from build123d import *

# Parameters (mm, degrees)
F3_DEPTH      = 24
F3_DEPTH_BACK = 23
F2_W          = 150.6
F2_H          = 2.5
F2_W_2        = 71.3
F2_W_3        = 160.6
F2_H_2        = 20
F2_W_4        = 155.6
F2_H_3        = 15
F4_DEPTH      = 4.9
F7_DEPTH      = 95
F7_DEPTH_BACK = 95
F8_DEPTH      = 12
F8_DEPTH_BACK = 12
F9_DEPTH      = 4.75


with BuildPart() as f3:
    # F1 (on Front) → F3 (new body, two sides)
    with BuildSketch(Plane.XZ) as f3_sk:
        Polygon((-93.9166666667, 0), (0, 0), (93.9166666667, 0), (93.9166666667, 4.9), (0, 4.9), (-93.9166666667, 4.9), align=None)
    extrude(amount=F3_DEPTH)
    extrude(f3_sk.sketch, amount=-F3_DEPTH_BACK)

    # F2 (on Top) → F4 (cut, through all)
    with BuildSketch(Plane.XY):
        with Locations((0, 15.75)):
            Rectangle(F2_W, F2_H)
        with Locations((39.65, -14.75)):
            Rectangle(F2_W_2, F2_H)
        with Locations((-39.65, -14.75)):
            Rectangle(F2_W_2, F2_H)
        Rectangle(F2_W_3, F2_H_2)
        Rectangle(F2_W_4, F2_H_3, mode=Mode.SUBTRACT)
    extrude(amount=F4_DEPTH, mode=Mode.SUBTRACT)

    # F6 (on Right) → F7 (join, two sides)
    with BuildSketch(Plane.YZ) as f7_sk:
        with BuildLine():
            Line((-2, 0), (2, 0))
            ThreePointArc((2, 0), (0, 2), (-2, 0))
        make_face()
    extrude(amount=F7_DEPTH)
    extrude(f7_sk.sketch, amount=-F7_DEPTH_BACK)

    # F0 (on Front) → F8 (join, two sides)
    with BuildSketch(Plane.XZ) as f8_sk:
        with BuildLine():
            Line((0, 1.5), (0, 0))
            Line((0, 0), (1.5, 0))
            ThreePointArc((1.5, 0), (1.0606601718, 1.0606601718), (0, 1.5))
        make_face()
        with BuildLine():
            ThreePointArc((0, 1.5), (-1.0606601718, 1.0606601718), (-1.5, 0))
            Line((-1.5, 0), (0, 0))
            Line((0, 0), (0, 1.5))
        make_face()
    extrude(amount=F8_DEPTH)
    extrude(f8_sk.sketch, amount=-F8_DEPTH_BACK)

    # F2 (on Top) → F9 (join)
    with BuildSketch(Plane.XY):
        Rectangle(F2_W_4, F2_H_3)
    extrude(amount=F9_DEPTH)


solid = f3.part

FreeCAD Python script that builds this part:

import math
import FreeCAD as App
import Part
import Sketcher

V = App.Vector
Q = App.Units.Quantity


def add_polygon(sketch, points):
    """Adds a closed chain of lines whose ends are joined by coincident constraints."""
    first, n = sketch.GeometryCount, len(points)
    for a, b in zip(points, points[1:] + points[:1]):
        sketch.addGeometry(Part.LineSegment(App.Vector(*a, 0), App.Vector(*b, 0)), False)
    for i in range(n):
        sketch.addConstraint(Sketcher.Constraint("Coincident", first + i, 2, first + (i + 1) % n, 1))

doc = App.newDocument("Part")
params = doc.addObject("Spreadsheet::Sheet", "Params")
for row, (alias, value) in enumerate([
    ("sketch1_height", "4.9 mm"),
    ("pad1_length", "24 mm"),
    ("pad1_length2", "23 mm"),
    ("sketch2_height", "20 mm"),
    ("sketch2_height2", "15 mm"),
    ("sketch2_width", "150.6 mm"),
    ("sketch2_width2", "71.3 mm"),
    ("sketch2_width3", "160.6 mm"),
    ("sketch3_radius", "2 mm"),
    ("pad2_length", "95 mm"),
    ("pad2_length2", "95 mm"),
    ("sketch4_radius", "1.5 mm"),
    ("pad3_length", "12 mm"),
    ("pad3_length2", "12 mm"),
    ("sketch5_height", "15 mm"),
    ("sketch5_width", "155.6 mm"),
    ("pad4_length", "4.75 mm"),
], start=1):
    params.set(f"A{row}", alias)
    params.set(f"B{row}", "=" + value)
    params.setAlias(f"B{row}", alias)

body = doc.addObject("PartDesign::Body", "Body")
body.AllowCompound = True

sketch1 = body.newObject("Sketcher::SketchObject", "Sketch")
sketch1.AttachmentSupport = (doc.getObject("XZ_Plane"), [""])
sketch1.MapMode = "FlatFace"
add_polygon(sketch1, [(-93.9, 0), (93.9, 0), (93.9, 4.9), (-93.9, 4.9)])
sketch1.addConstraint(Sketcher.Constraint("Horizontal", 0))
sketch1.addConstraint(Sketcher.Constraint("Vertical", 1))
sketch1.addConstraint(Sketcher.Constraint("Horizontal", 2))
sketch1.addConstraint(Sketcher.Constraint("Vertical", 3))
sketch1.addConstraint(Sketcher.Constraint("Symmetric", 0, 2, 3, 2, -1, 1))
sketch1.addConstraint(Sketcher.Constraint("DistanceY", 1, 1, 1, 2, Q("4.9 mm")))
sketch1.addConstraint(Sketcher.Constraint("DistanceX", 0, 1, 0, 2, Q("187.833333 mm")))
sketch1.setExpression("Constraints[9]", "Params.sketch1_height")
pad1 = body.newObject("PartDesign::Pad", "Pad")
pad1.Profile = sketch1
pad1.Type = "TwoLengths"
pad1.setExpression("Length", "Params.pad1_length")
pad1.setExpression("Length2", "Params.pad1_length2")

sketch2 = body.newObject("Sketcher::SketchObject", "Sketch001")
sketch2.AttachmentSupport = (doc.getObject("XY_Plane"), [""])
sketch2.MapMode = "FlatFace"
add_polygon(sketch2, [(-75.3, 17), (-75.3, 14.5), (75.3, 14.5), (75.3, 17)])
add_polygon(sketch2, [(4, -13.5), (4, -16), (75.3, -16), (75.3, -13.5)])
add_polygon(sketch2, [(-75.3, -13.5), (-75.3, -16), (-4, -16), (-4, -13.5)])
add_polygon(sketch2, [(-80.3, 10), (-80.3, -10), (80.3, -10), (80.3, 10)])
add_polygon(sketch2, [(77.8, -7.5), (-77.8, -7.5), (-77.8, 7.5), (77.8, 7.5)])
sketch2.addConstraint(Sketcher.Constraint("Vertical", 0))
sketch2.addConstraint(Sketcher.Constraint("Horizontal", 1))
sketch2.addConstraint(Sketcher.Constraint("Vertical", 2))
sketch2.addConstraint(Sketcher.Constraint("Horizontal", 3))
sketch2.addConstraint(Sketcher.Constraint("Vertical", 4))
sketch2.addConstraint(Sketcher.Constraint("Horizontal", 5))
sketch2.addConstraint(Sketcher.Constraint("Vertical", 6))
sketch2.addConstraint(Sketcher.Constraint("Horizontal", 7))
sketch2.addConstraint(Sketcher.Constraint("Vertical", 8))
sketch2.addConstraint(Sketcher.Constraint("Horizontal", 9))
sketch2.addConstraint(Sketcher.Constraint("Vertical", 10))
sketch2.addConstraint(Sketcher.Constraint("Horizontal", 11))
sketch2.addConstraint(Sketcher.Constraint("Vertical", 12))
sketch2.addConstraint(Sketcher.Constraint("Horizontal", 13))
sketch2.addConstraint(Sketcher.Constraint("Vertical", 14))
sketch2.addConstraint(Sketcher.Constraint("Horizontal", 15))
sketch2.addConstraint(Sketcher.Constraint("Horizontal", 16))
sketch2.addConstraint(Sketcher.Constraint("Vertical", 17))
sketch2.addConstraint(Sketcher.Constraint("Horizontal", 18))
sketch2.addConstraint(Sketcher.Constraint("Vertical", 19))
sketch2.addConstraint(Sketcher.Constraint("Symmetric", 12, 2, 14, 2, -1, 1))
sketch2.addConstraint(Sketcher.Constraint("Symmetric", 16, 2, 18, 2, -1, 1))
sketch2.addConstraint(Sketcher.Constraint("Symmetric", 5, 2, 8, 2, -2))
sketch2.addConstraint(Sketcher.Constraint("Symmetric", 7, 2, 10, 2, -2))
sketch2.addConstraint(Sketcher.Constraint("Vertical", 2, 2, 5, 2))
sketch2.addConstraint(Sketcher.Constraint("Vertical", 3, 2, 8, 2))
sketch2.addConstraint(Sketcher.Constraint("Equal", 2, 4))
sketch2.addConstraint(Sketcher.Constraint("DistanceY", 12, 2, 12, 1, Q("20 mm")))
sketch2.addConstraint(Sketcher.Constraint("DistanceY", 17, 1, 17, 2, Q("15 mm")))
sketch2.addConstraint(Sketcher.Constraint("DistanceX", 1, 1, 1, 2, Q("150.6 mm")))
sketch2.addConstraint(Sketcher.Constraint("DistanceX", 5, 1, 5, 2, Q("71.3 mm")))
sketch2.addConstraint(Sketcher.Constraint("DistanceX", 13, 1, 13, 2, Q("160.6 mm")))
sketch2.addConstraint(Sketcher.Constraint("DistanceX", 16, 2, 16, 1, Q("155.6 mm")))
sketch2.addConstraint(Sketcher.Constraint("DistanceY", 0, 2, 0, 1, Q("2.5 mm")))
sketch2.addConstraint(Sketcher.Constraint("DistanceY", -1, 1, 2, 2, Q("17 mm")))
sketch2.addConstraint(Sketcher.Constraint("DistanceY", 4, 2, -1, 1, Q("16 mm")))
sketch2.setExpression("Constraints[47]", "Params.sketch2_height")
sketch2.setExpression("Constraints[48]", "Params.sketch2_height2")
sketch2.setExpression("Constraints[49]", "Params.sketch2_width")
sketch2.setExpression("Constraints[50]", "Params.sketch2_width2")
sketch2.setExpression("Constraints[51]", "Params.sketch2_width3")
pocket1 = body.newObject("PartDesign::Pocket", "Pocket")
pocket1.Profile = sketch2
pocket1.Type = "ThroughAll"
pocket1.Reversed = True

sketch3 = body.newObject("Sketcher::SketchObject", "Sketch002")
sketch3.AttachmentSupport = (doc.getObject("YZ_Plane"), [""])
sketch3.MapMode = "FlatFace"
sketch3.addGeometry(Part.LineSegment(V(-2, 0, 0), V(2, 0, 0)), False)
sketch3.addGeometry(Part.ArcOfCircle(Part.Circle(V(0, 0, 0), V(0, 0, 1), 2), math.radians(0), math.radians(180)), False)
sketch3.addConstraint(Sketcher.Constraint("Coincident", 0, 1, 1, 2))
sketch3.addConstraint(Sketcher.Constraint("Coincident", 1, 1, 0, 2))
sketch3.addConstraint(Sketcher.Constraint("Horizontal", 0))
sketch3.addConstraint(Sketcher.Constraint("Coincident", 1, 3, -1, 1))
sketch3.addConstraint(Sketcher.Constraint("PointOnObject", 0, 1, -1))
sketch3.addConstraint(Sketcher.Constraint("Radius", 1, Q("2 mm")))
sketch3.setExpression("Constraints[5]", "Params.sketch3_radius")
pad2 = body.newObject("PartDesign::Pad", "Pad001")
pad2.Profile = sketch3
pad2.Type = "TwoLengths"
pad2.setExpression("Length", "Params.pad2_length")
pad2.setExpression("Length2", "Params.pad2_length2")

sketch4 = body.newObject("Sketcher::SketchObject", "Sketch003")
sketch4.AttachmentSupport = (doc.getObject("XZ_Plane"), [""])
sketch4.MapMode = "FlatFace"
sketch4.addGeometry(Part.ArcOfCircle(Part.Circle(V(0, 0, 0), V(0, 0, 1), 1.5), math.radians(0), math.radians(90)), False)
sketch4.addGeometry(Part.ArcOfCircle(Part.Circle(V(0, 0, 0), V(0, 0, 1), 1.5), math.radians(90), math.radians(180)), False)
sketch4.addGeometry(Part.LineSegment(V(-1.5, 0, 0), V(1.5, 0, 0)), False)
sketch4.addConstraint(Sketcher.Constraint("Tangent", 0, 2, 1, 1))
sketch4.addConstraint(Sketcher.Constraint("Coincident", 1, 2, 2, 1))
sketch4.addConstraint(Sketcher.Constraint("Coincident", 2, 2, 0, 1))
sketch4.addConstraint(Sketcher.Constraint("Horizontal", 2))
sketch4.addConstraint(Sketcher.Constraint("Coincident", 0, 3, -1, 1))
sketch4.addConstraint(Sketcher.Constraint("Equal", 0, 1))
sketch4.addConstraint(Sketcher.Constraint("PointOnObject", 0, 2, -2))
sketch4.addConstraint(Sketcher.Constraint("PointOnObject", 1, 2, -1))
sketch4.addConstraint(Sketcher.Constraint("Radius", 0, Q("1.5 mm")))
sketch4.setExpression("Constraints[8]", "Params.sketch4_radius")
pad3 = body.newObject("PartDesign::Pad", "Pad002")
pad3.Profile = sketch4
pad3.Type = "TwoLengths"
pad3.setExpression("Length", "Params.pad3_length")
pad3.setExpression("Length2", "Params.pad3_length2")

sketch5 = body.newObject("Sketcher::SketchObject", "Sketch004")
sketch5.AttachmentSupport = (doc.getObject("XY_Plane"), [""])
sketch5.MapMode = "FlatFace"
add_polygon(sketch5, [(-78, 8), (-78, -8), (78, -8), (78, 8)])
sketch5.addConstraint(Sketcher.Constraint("Vertical", 0))
sketch5.addConstraint(Sketcher.Constraint("Horizontal", 1))
sketch5.addConstraint(Sketcher.Constraint("Vertical", 2))
sketch5.addConstraint(Sketcher.Constraint("Horizontal", 3))
sketch5.addConstraint(Sketcher.Constraint("Symmetric", 0, 2, 2, 2, -1, 1))
sketch5.addConstraint(Sketcher.Constraint("DistanceY", 0, 2, 0, 1, Q("15 mm")))
sketch5.addConstraint(Sketcher.Constraint("DistanceX", 1, 1, 1, 2, Q("155.6 mm")))
sketch5.setExpression("Constraints[9]", "Params.sketch5_height")
sketch5.setExpression("Constraints[10]", "Params.sketch5_width")
pad4 = body.newObject("PartDesign::Pad", "Pad003")
pad4.Profile = sketch5
pad4.setExpression("Length", "Params.pad4_length")

doc.recompute()
